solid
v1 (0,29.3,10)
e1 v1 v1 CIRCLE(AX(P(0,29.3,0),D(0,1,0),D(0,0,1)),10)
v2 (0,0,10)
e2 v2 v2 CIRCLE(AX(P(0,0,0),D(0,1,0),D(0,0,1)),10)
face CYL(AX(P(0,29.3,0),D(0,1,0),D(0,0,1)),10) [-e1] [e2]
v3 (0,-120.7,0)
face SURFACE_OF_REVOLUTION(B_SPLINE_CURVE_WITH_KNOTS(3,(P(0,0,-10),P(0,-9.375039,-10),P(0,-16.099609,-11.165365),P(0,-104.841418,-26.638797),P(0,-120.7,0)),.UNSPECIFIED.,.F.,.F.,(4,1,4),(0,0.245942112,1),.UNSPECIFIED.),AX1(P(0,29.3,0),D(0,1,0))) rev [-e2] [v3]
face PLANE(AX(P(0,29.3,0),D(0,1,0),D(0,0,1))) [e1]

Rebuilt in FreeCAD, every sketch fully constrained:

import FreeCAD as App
import Part
import Sketcher

V = App.Vector
Q = App.Units.Quantity

doc = App.newDocument("Part")
body = doc.addObject("PartDesign::Body", "Body")

# Sketch on YZ plane
sketch1 = body.newObject("Sketcher::SketchObject", "Sketch")
sketch1.AttachmentSupport = (doc.getObject("YZ_Plane"), [""])
sketch1.MapMode = "FlatFace"
sketch1.addGeometry(Part.LineSegment(V(29.3, 0, 0), V(-120.7, 0, 0)), False)
sketch1.addGeometry(Part.BSplineCurve([V(0, -10, 0), V(-9.375039, -10, 0), V(-16.099609, -11.165365, 0), V(-104.841418, -26.638797, 0), V(-120.7, 0, 0)], [4, 1, 4], [0, 0.245942112, 1], False, 3, [1, 1, 1, 1, 1], False), False)
sketch1.addGeometry(Part.LineSegment(V(0, -10, 0), V(29.3, -10, 0)), False)
sketch1.addGeometry(Part.LineSegment(V(29.3, -10, 0), V(29.3, 0, 0)), False)
sketch1.addConstraint(Sketcher.Constraint("Block", 1))
sketch1.addConstraint(Sketcher.Constraint("Coincident", 0, 2, 1, 2))
sketch1.addConstraint(Sketcher.Constraint("Coincident", 1, 1, 2, 1))
sketch1.addConstraint(Sketcher.Constraint("Coincident", 2, 2, 3, 1))
sketch1.addConstraint(Sketcher.Constraint("Coincident", 3, 2, 0, 1))
sketch1.addConstraint(Sketcher.Constraint("Horizontal", 0))
sketch1.addConstraint(Sketcher.Constraint("Horizontal", 2))
sketch1.addConstraint(Sketcher.Constraint("Vertical", 3))
sketch1.addConstraint(Sketcher.Constraint("DistanceX", 0, 2, 0, 1, Q("150 mm")))
revolution = body.newObject("PartDesign::Revolution", "Revolution")
revolution.Profile = sketch1
revolution.ReferenceAxis = (sketch1, ["H_Axis"])
revolution.Angle = 360

doc.recompute()
